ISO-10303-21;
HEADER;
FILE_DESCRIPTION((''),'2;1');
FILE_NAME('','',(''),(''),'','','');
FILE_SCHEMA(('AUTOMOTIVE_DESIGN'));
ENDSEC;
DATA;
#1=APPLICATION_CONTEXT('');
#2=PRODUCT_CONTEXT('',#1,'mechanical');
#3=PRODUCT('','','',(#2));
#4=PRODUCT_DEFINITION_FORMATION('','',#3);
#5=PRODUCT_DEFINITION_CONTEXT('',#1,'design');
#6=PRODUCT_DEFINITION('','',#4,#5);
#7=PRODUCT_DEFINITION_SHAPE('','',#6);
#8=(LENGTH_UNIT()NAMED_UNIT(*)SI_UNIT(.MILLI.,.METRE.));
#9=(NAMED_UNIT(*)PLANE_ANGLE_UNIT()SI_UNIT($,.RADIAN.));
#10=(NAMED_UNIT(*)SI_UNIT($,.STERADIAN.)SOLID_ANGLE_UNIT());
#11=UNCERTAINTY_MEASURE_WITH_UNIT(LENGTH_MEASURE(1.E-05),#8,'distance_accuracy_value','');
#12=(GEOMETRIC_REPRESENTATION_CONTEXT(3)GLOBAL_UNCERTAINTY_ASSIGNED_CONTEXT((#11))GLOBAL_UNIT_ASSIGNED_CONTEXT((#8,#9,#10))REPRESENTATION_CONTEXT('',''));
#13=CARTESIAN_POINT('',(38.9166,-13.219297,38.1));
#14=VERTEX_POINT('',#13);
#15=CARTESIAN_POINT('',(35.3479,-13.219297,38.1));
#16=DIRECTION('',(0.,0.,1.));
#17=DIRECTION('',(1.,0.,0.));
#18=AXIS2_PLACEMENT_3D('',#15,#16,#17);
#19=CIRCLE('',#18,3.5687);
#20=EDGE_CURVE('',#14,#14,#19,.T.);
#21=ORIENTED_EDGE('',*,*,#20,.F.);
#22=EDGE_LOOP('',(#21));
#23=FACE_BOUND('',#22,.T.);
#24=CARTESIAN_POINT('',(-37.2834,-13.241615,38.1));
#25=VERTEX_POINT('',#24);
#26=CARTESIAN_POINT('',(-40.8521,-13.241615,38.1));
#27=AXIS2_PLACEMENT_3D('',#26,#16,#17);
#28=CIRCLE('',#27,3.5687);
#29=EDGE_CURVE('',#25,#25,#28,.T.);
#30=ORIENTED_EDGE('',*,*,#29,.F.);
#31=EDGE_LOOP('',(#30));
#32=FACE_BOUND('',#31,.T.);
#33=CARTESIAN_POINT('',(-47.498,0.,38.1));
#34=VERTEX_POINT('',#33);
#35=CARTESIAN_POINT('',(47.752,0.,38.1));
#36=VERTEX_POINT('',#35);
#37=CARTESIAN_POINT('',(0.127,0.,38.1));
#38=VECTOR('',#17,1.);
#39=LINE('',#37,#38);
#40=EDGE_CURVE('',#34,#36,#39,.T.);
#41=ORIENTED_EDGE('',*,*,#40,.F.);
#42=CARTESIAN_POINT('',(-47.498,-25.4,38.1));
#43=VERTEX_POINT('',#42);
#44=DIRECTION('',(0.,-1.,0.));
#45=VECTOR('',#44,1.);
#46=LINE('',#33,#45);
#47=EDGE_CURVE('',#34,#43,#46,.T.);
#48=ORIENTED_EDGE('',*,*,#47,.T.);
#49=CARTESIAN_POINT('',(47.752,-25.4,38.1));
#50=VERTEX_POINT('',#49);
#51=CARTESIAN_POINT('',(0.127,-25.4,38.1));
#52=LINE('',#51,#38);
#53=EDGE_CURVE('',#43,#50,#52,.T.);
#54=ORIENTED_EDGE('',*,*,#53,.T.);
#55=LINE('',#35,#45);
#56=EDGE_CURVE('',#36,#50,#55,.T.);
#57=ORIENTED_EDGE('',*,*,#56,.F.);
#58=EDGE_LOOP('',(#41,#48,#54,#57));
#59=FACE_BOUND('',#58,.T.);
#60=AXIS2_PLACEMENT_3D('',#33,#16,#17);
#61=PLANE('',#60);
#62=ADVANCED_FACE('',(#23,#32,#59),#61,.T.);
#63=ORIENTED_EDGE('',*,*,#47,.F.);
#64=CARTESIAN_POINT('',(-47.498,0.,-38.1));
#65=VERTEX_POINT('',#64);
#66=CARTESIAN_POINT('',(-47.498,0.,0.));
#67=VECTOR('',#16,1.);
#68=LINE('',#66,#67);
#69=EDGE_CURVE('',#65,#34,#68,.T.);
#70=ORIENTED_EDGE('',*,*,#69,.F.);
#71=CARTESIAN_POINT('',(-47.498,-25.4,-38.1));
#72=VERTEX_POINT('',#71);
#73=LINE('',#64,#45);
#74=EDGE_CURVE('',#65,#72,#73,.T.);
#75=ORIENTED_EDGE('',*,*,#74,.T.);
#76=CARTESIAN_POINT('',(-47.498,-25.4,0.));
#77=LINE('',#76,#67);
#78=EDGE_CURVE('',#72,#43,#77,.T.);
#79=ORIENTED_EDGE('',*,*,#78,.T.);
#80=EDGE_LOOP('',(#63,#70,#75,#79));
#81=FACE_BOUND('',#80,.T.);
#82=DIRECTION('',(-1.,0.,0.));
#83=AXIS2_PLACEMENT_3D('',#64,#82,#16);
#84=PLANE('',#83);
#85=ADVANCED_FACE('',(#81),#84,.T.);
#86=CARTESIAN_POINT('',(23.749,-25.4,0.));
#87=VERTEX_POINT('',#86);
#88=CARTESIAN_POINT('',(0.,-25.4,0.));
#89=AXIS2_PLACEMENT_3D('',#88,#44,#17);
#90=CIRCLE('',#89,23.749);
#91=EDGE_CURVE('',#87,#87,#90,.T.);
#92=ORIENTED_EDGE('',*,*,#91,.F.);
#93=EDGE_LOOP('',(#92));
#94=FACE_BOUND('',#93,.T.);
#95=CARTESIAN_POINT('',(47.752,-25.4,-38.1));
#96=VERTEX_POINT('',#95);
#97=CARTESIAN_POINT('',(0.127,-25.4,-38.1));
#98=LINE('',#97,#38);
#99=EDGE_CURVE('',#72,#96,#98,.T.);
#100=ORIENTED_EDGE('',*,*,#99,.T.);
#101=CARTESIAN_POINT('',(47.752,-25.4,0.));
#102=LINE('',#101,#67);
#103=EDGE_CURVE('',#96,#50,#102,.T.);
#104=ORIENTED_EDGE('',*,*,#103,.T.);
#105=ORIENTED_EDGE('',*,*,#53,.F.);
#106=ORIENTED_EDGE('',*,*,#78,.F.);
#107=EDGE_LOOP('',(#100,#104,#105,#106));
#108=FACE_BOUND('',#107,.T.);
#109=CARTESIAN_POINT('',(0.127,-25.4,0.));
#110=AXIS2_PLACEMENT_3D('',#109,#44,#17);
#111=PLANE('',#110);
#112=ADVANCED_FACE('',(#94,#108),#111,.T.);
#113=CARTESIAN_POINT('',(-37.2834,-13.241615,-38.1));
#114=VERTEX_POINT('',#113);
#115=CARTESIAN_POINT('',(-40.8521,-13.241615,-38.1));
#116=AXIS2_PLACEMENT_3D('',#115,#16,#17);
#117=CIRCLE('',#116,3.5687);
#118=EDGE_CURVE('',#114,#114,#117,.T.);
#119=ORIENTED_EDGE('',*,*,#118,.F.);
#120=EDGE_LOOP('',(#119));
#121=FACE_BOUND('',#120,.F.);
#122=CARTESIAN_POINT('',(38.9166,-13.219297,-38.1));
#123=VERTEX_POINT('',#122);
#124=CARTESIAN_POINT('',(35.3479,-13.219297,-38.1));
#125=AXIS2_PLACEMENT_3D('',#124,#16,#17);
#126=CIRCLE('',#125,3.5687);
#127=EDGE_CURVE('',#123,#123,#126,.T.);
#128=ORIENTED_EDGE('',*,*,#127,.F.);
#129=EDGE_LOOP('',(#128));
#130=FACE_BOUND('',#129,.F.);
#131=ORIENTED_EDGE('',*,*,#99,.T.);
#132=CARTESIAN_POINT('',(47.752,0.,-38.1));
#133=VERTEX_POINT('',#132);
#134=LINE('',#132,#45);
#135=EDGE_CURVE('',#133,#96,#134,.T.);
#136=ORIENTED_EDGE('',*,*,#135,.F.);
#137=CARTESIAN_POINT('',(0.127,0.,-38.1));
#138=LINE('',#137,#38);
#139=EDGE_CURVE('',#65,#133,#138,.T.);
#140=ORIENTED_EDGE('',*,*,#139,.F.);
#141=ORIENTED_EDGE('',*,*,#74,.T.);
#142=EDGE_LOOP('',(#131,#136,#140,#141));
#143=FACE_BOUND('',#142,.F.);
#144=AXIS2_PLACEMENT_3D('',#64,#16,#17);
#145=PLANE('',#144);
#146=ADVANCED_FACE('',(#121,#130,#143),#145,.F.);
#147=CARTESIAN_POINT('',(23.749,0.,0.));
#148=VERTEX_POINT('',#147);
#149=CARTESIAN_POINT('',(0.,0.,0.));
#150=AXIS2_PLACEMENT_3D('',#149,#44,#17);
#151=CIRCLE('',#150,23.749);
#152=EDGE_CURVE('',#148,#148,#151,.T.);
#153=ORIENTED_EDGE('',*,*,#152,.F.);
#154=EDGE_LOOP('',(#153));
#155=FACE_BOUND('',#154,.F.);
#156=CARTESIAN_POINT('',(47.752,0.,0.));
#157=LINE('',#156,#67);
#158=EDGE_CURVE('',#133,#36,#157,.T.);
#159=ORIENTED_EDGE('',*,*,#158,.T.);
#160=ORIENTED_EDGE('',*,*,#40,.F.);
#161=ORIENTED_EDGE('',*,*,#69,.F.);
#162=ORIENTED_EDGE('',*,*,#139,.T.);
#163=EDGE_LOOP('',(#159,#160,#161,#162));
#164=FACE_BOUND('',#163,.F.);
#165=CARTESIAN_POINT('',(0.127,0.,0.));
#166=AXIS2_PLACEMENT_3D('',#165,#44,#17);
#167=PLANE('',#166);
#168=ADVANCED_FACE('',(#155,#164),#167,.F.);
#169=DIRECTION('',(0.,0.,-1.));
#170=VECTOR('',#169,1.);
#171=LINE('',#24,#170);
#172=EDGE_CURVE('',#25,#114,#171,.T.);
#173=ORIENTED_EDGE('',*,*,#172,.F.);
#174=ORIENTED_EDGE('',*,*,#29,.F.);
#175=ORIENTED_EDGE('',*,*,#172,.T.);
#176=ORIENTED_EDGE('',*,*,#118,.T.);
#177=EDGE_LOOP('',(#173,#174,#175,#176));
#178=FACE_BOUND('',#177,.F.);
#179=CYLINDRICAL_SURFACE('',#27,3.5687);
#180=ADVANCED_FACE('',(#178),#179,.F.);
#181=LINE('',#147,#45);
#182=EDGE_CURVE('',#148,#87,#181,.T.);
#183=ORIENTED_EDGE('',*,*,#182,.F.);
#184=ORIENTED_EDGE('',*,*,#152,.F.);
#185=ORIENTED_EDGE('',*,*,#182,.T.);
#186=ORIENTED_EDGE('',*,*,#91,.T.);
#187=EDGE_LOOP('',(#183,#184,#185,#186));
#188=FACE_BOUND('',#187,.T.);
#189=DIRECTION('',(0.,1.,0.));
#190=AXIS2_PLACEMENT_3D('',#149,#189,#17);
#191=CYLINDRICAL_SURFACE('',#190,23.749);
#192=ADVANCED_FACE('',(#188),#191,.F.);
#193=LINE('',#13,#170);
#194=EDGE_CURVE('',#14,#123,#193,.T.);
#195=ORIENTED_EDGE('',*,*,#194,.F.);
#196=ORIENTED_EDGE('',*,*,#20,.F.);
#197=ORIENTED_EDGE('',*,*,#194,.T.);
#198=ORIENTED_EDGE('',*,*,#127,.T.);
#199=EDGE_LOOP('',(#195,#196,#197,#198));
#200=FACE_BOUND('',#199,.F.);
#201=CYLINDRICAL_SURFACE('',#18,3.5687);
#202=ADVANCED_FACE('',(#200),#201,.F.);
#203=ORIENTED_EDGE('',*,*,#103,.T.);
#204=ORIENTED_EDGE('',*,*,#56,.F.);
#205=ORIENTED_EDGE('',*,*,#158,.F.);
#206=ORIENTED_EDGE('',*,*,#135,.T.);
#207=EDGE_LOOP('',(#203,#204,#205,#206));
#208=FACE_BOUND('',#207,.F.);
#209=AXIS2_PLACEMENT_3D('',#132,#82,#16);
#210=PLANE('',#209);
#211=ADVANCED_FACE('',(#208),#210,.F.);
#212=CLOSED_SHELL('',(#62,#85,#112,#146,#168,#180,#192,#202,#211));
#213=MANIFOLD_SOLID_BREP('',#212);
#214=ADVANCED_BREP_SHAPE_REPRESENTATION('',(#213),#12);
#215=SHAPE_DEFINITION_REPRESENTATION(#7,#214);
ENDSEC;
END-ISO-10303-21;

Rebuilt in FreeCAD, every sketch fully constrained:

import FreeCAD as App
import Part
import Sketcher

V = App.Vector
Q = App.Units.Quantity

doc = App.newDocument("Part")
body = doc.addObject("PartDesign::Body", "Body")

sketch1 = body.newObject("Sketcher::SketchObject", "Sketch")
sketch1.AttachmentSupport = (doc.getObject("XZ_Plane"), [""])
sketch1.MapMode = "FlatFace"
sketch1.addGeometry([
    Part.LineSegment(V(-47, 38, 0), V(-47, -38, 0)),
    Part.LineSegment(V(-47, -38, 0), V(48, -38, 0)),
    Part.LineSegment(V(48, -38, 0), V(48, 38, 0)),
    Part.LineSegment(V(48, 38, 0), V(-47, 38, 0)),
    Part.Circle(V(0, 0, 0), V(0, 0, 1), 24),
], False)
sketch1.addConstraint([
    Sketcher.Constraint("Coincident", 0, 2, 1, 1),
    Sketcher.Constraint("Coincident", 1, 2, 2, 1),
    Sketcher.Constraint("Coincident", 2, 2, 3, 1),
    Sketcher.Constraint("Coincident", 3, 2, 0, 1),
    Sketcher.Constraint("Vertical", 0),
    Sketcher.Constraint("Horizontal", 1),
    Sketcher.Constraint("Vertical", 2),
    Sketcher.Constraint("Horizontal", 3),
    Sketcher.Constraint("Coincident", 4, 3, -1, 1),
    Sketcher.Constraint("Diameter", 4, Q("1.87 in")),
    Sketcher.Constraint("DistanceY", 0, 2, 0, 1, Q("3 in")),
    Sketcher.Constraint("DistanceX", 1, 1, 1, 2, Q("3.75 in")),
    Sketcher.Constraint("DistanceY", 0, 2, -1, 1, Q("1.5 in")),
    Sketcher.Constraint("DistanceX", 0, 2, -1, 1, Q("1.87 in")),
])
pad1 = body.newObject("PartDesign::Pad", "Pad")
pad1.Profile = sketch1
pad1.Length = Q("1 in")

sketch2 = body.newObject("Sketcher::SketchObject", "Sketch001")
sketch2.AttachmentSupport = (doc.getObject("XY_Plane"), [""])
sketch2.MapMode = "FlatFace"
sketch2.AttachmentOffset = App.Placement(V(0, 0, 1.5 * 25.4), App.Rotation())
sketch2.addGeometry([
    Part.Circle(V(-40.9, -13.2, 0), V(0, 0, 1), 3.6),
    Part.Circle(V(35.3, -13.2, 0), V(0, 0, 1), 3.6),
], False)
sketch2.addConstraint([
    Sketcher.Constraint("Equal", 0, 1),
    Sketcher.Constraint("Diameter", 0, Q("0.281 in")),
    Sketcher.Constraint("DistanceX", 0, 3, 1, 3, Q("3 in")),
    Sketcher.Constraint("DistanceX", 0, 3, -1, 1, 40.8521),
    Sketcher.Constraint("DistanceY", 0, 3, 1, 3, 0.022318),
    Sketcher.Constraint("DistanceY", 0, 3, -1, 1, 13.241615),
])
pocket1 = body.newObject("PartDesign::Pocket", "Pocket")
pocket1.Profile = sketch2
pocket1.Type = "ThroughAll"

doc.recompute()
